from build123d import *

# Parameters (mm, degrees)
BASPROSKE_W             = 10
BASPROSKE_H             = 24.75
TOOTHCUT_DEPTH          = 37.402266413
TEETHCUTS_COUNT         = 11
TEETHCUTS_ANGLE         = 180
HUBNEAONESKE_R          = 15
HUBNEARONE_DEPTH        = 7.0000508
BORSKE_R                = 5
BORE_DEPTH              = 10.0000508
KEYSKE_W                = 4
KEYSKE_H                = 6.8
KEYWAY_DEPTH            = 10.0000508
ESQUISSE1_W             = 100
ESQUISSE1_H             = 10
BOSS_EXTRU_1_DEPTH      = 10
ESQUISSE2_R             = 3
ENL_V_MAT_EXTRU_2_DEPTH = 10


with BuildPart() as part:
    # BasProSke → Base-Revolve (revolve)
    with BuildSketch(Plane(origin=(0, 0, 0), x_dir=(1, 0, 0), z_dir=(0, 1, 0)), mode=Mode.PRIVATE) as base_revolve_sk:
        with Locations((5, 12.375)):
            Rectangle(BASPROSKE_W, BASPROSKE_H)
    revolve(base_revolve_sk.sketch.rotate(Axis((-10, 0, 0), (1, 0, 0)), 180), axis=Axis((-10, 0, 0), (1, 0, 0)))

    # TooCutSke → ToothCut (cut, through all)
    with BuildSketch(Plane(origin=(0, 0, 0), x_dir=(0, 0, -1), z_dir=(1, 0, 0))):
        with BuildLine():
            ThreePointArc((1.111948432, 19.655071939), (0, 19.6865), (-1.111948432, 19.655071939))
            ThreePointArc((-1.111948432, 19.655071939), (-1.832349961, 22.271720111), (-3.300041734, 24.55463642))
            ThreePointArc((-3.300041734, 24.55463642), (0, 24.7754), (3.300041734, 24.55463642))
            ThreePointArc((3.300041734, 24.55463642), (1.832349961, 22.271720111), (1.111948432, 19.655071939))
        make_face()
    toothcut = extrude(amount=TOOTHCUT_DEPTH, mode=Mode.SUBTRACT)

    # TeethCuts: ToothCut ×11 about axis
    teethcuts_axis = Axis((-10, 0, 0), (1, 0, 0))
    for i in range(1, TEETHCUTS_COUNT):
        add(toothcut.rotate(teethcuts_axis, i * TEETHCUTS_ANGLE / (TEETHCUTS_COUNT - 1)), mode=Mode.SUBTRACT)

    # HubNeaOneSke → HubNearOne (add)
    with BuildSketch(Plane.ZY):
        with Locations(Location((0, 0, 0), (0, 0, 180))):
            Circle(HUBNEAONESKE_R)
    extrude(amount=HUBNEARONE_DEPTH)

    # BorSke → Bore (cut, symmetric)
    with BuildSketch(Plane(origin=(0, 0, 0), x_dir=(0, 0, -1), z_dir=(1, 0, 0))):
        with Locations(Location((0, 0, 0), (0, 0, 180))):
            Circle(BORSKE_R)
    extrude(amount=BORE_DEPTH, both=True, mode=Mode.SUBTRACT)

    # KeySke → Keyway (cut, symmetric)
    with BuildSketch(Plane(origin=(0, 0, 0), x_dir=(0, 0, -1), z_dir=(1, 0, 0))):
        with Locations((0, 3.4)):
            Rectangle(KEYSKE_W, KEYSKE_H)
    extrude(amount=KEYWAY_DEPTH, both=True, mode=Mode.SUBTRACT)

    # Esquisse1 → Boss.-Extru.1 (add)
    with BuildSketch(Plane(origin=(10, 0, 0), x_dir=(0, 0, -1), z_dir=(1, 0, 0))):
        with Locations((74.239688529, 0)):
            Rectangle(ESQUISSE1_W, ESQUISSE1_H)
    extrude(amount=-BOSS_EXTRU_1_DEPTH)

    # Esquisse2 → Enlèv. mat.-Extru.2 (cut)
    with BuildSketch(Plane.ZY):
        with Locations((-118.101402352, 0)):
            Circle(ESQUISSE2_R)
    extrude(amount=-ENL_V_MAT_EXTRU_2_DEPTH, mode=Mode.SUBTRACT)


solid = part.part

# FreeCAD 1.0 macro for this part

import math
import FreeCAD as App
import Part
import Sketcher

V = App.Vector
Q = App.Units.Quantity

doc = App.newDocument("Part")
body = doc.addObject("PartDesign::Body", "Body")

# Sketch on XZ plane
sketch1 = body.newObject("Sketcher::SketchObject", "Sketch")
sketch1.AttachmentSupport = (doc.getObject("XZ_Plane"), [""])
sketch1.MapMode = "FlatFace"
sketch1.addGeometry([
    Part.LineSegment(V(0, -25, 0), V(0, 0, 0)),
    Part.LineSegment(V(0, 0, 0), V(10, 0, 0)),
    Part.LineSegment(V(10, 0, 0), V(10, -25, 0)),
    Part.LineSegment(V(10, -25, 0), V(0, -25, 0)),
], False)
sketch1.addConstraint([
    Sketcher.Constraint("Coincident", 0, 2, 1, 1),
    Sketcher.Constraint("Coincident", 1, 2, 2, 1),
    Sketcher.Constraint("Coincident", 2, 2, 3, 1),
    Sketcher.Constraint("Coincident", 3, 2, 0, 1),
    Sketcher.Constraint("Vertical", 0),
    Sketcher.Constraint("Horizontal", 1),
    Sketcher.Constraint("Vertical", 2),
    Sketcher.Constraint("Horizontal", 3),
    Sketcher.Constraint("Coincident", 0, 2, -1, 1),
    Sketcher.Constraint("DistanceX", 1, 1, 1, 2, Q("10 mm")),
    Sketcher.Constraint("DistanceY", 0, 1, 0, 2, Q("24.75 mm")),
])
revolution = body.newObject("PartDesign::Revolution", "Revolution")
revolution.Profile = sketch1
revolution.ReferenceAxis = (sketch1, ["H_Axis"])
revolution.Angle = 360

# Sketch on YZ plane
sketch2 = body.newObject("Sketcher::SketchObject", "Sketch001")
sketch2.AttachmentSupport = (doc.getObject("YZ_Plane"), [""])
sketch2.MapMode = "FlatFace"
sketch2.addGeometry([
    Part.ArcOfCircle(Part.Circle(V(0, 0, 0), V(0, 0, 1), 19.7), math.radians(-3.24), math.radians(3.24)),
    Part.ArcOfCircle(Part.Circle(V(18.6, -10.1, 0), V(0, 0, 1), 9), math.radians(49), math.radians(83)),
    Part.ArcOfCircle(Part.Circle(V(0, 0, 0), V(0, 0, 1), 24.8), math.radians(-7.65), math.radians(7.65)),
    Part.ArcOfCircle(Part.Circle(V(18.6, 10.1, 0), V(0, 0, 1), 9), math.radians(-83), math.radians(-49)),
], False)
sketch2.addConstraint([
    Sketcher.Constraint("Coincident", 0, 1, 1, 2),
    Sketcher.Constraint("Coincident", 1, 1, 2, 1),
    Sketcher.Constraint("Coincident", 2, 2, 3, 2),
    Sketcher.Constraint("Coincident", 3, 1, 0, 2),
    Sketcher.Constraint("Coincident", 0, 3, -1, 1),
    Sketcher.Constraint("Coincident", 2, 3, -1, 1),
    Sketcher.Constraint("Equal", 1, 3),
    Sketcher.Constraint("Symmetric", 1, 3, 3, 3, -1),
    Sketcher.Constraint("Radius", 1, Q("9 mm")),
    Sketcher.Constraint("Radius", 0, Q("19.6865 mm")),
    Sketcher.Constraint("Radius", 2, Q("24.7754 mm")),
    Sketcher.Constraint("DistanceY", 1, 3, -1, 1, Q("10.050099 mm")),
    Sketcher.Constraint("DistanceX", -1, 1, 1, 3, Q("18.601761 mm")),
])
pocket1 = body.newObject("PartDesign::Pocket", "Pocket")
pocket1.Profile = sketch2
pocket1.Type = "ThroughAll"
pocket1.Reversed = True
doc.recompute()

polarpattern = body.newObject("PartDesign::PolarPattern", "PolarPattern")
polarpattern.Originals = [pocket1]
polarpattern.Axis = (doc.getObject("X_Axis"), [""])
polarpattern.Angle = 180
polarpattern.Occurrences = 11
body.Tip = polarpattern

# Sketch on YZ plane
sketch3 = body.newObject("Sketcher::SketchObject", "Sketch002")
sketch3.AttachmentSupport = (doc.getObject("YZ_Plane"), [""])
sketch3.MapMode = "FlatFace"
sketch3.addGeometry(Part.Circle(V(0, 0, 0), V(0, 0, 1), 15), False)
sketch3.addConstraint([
    Sketcher.Constraint("Coincident", 0, 3, -1, 1),
    Sketcher.Constraint("Diameter", 0, Q("30 mm")),
])
pad1 = body.newObject("PartDesign::Pad", "Pad")
pad1.Profile = sketch3
pad1.Length = 7.000051
pad1.Reversed = True

# Sketch on YZ plane
sketch4 = body.newObject("Sketcher::SketchObject", "Sketch003")
sketch4.AttachmentSupport = (doc.getObject("YZ_Plane"), [""])
sketch4.MapMode = "FlatFace"
sketch4.addGeometry(Part.Circle(V(0, 0, 0), V(0, 0, 1), 5), False)
sketch4.addConstraint([
    Sketcher.Constraint("Coincident", 0, 3, -1, 1),
    Sketcher.Constraint("Diameter", 0, Q("10 mm")),
])
pocket2 = body.newObject("PartDesign::Pocket", "Pocket001")
pocket2.Profile = sketch4
pocket2.Length = 20.000102
pocket2.Midplane = True

# Sketch on YZ plane
sketch5 = body.newObject("Sketcher::SketchObject", "Sketch004")
sketch5.AttachmentSupport = (doc.getObject("YZ_Plane"), [""])
sketch5.MapMode = "FlatFace"
sketch5.addGeometry([
    Part.LineSegment(V(6.8, 2, 0), V(0, 2, 0)),
    Part.LineSegment(V(0, 2, 0), V(0, -2, 0)),
    Part.LineSegment(V(0, -2, 0), V(6.8, -2, 0)),
    Part.LineSegment(V(6.8, -2, 0), V(6.8, 2, 0)),
], False)
sketch5.addConstraint([
    Sketcher.Constraint("Coincident", 0, 2, 1, 1),
    Sketcher.Constraint("Coincident", 1, 2, 2, 1),
    Sketcher.Constraint("Coincident", 2, 2, 3, 1),
    Sketcher.Constraint("Coincident", 3, 2, 0, 1),
    Sketcher.Constraint("Horizontal", 0),
    Sketcher.Constraint("Vertical", 1),
    Sketcher.Constraint("Horizontal", 2),
    Sketcher.Constraint("Vertical", 3),
    Sketcher.Constraint("Symmetric", 0, 2, 1, 2, -1, 1),
    Sketcher.Constraint("DistanceY", 1, 2, 1, 1, Q("4 mm")),
    Sketcher.Constraint("DistanceX", 0, 2, 0, 1, Q("6.8 mm")),
])
pocket3 = body.newObject("PartDesign::Pocket", "Pocket002")
pocket3.Profile = sketch5
pocket3.Length = 20.000102
pocket3.Midplane = True

# Sketch on YZ plane
sketch6 = body.newObject("Sketcher::SketchObject", "Sketch005")
sketch6.AttachmentSupport = (doc.getObject("YZ_Plane"), [""])
sketch6.MapMode = "FlatFace"
sketch6.AttachmentOffset = App.Placement(V(0, 0, 10), App.Rotation())
sketch6.addGeometry([
    Part.LineSegment(V(5, -24, 0), V(-5, -24, 0)),
    Part.LineSegment(V(-5, -24, 0), V(-5, -124, 0)),
    Part.LineSegment(V(-5, -124, 0), V(5, -124, 0)),
    Part.LineSegment(V(5, -124, 0), V(5, -24, 0)),
], False)
sketch6.addConstraint([
    Sketcher.Constraint("Coincident", 0, 2, 1, 1),
    Sketcher.Constraint("Coincident", 1, 2, 2, 1),
    Sketcher.Constraint("Coincident", 2, 2, 3, 1),
    Sketcher.Constraint("Coincident", 3, 2, 0, 1),
    Sketcher.Constraint("Horizontal", 0),
    Sketcher.Constraint("Vertical", 1),
    Sketcher.Constraint("Horizontal", 2),
    Sketcher.Constraint("Vertical", 3),
    Sketcher.Constraint("DistanceX", 0, 2, 0, 1, Q("10 mm")),
    Sketcher.Constraint("DistanceY", 1, 2, 1, 1, Q("100 mm")),
    Sketcher.Constraint("DistanceX", 0, 2, -1, 1, Q("5 mm")),
    Sketcher.Constraint("DistanceY", 0, 2, -1, 1, Q("24.239689 mm")),
])
pad2 = body.newObject("PartDesign::Pad", "Pad001")
pad2.Profile = sketch6
pad2.Length = 10
pad2.Reversed = True

# Sketch on YZ plane
sketch7 = body.newObject("Sketcher::SketchObject", "Sketch006")
sketch7.AttachmentSupport = (doc.getObject("YZ_Plane"), [""])
sketch7.MapMode = "FlatFace"
sketch7.addGeometry(Part.Circle(V(0, -118.1, 0), V(0, 0, 1), 3), False)
sketch7.addConstraint([
    Sketcher.Constraint("PointOnObject", 0, 3, -2),
    Sketcher.Constraint("Diameter", 0, Q("6 mm")),
    Sketcher.Constraint("DistanceY", 0, 3, -1, 1, Q("118.101402 mm")),
])
pocket4 = body.newObject("PartDesign::Pocket", "Pocket003")
pocket4.Profile = sketch7
pocket4.Length = 10
pocket4.Reversed = True

doc.recompute()
